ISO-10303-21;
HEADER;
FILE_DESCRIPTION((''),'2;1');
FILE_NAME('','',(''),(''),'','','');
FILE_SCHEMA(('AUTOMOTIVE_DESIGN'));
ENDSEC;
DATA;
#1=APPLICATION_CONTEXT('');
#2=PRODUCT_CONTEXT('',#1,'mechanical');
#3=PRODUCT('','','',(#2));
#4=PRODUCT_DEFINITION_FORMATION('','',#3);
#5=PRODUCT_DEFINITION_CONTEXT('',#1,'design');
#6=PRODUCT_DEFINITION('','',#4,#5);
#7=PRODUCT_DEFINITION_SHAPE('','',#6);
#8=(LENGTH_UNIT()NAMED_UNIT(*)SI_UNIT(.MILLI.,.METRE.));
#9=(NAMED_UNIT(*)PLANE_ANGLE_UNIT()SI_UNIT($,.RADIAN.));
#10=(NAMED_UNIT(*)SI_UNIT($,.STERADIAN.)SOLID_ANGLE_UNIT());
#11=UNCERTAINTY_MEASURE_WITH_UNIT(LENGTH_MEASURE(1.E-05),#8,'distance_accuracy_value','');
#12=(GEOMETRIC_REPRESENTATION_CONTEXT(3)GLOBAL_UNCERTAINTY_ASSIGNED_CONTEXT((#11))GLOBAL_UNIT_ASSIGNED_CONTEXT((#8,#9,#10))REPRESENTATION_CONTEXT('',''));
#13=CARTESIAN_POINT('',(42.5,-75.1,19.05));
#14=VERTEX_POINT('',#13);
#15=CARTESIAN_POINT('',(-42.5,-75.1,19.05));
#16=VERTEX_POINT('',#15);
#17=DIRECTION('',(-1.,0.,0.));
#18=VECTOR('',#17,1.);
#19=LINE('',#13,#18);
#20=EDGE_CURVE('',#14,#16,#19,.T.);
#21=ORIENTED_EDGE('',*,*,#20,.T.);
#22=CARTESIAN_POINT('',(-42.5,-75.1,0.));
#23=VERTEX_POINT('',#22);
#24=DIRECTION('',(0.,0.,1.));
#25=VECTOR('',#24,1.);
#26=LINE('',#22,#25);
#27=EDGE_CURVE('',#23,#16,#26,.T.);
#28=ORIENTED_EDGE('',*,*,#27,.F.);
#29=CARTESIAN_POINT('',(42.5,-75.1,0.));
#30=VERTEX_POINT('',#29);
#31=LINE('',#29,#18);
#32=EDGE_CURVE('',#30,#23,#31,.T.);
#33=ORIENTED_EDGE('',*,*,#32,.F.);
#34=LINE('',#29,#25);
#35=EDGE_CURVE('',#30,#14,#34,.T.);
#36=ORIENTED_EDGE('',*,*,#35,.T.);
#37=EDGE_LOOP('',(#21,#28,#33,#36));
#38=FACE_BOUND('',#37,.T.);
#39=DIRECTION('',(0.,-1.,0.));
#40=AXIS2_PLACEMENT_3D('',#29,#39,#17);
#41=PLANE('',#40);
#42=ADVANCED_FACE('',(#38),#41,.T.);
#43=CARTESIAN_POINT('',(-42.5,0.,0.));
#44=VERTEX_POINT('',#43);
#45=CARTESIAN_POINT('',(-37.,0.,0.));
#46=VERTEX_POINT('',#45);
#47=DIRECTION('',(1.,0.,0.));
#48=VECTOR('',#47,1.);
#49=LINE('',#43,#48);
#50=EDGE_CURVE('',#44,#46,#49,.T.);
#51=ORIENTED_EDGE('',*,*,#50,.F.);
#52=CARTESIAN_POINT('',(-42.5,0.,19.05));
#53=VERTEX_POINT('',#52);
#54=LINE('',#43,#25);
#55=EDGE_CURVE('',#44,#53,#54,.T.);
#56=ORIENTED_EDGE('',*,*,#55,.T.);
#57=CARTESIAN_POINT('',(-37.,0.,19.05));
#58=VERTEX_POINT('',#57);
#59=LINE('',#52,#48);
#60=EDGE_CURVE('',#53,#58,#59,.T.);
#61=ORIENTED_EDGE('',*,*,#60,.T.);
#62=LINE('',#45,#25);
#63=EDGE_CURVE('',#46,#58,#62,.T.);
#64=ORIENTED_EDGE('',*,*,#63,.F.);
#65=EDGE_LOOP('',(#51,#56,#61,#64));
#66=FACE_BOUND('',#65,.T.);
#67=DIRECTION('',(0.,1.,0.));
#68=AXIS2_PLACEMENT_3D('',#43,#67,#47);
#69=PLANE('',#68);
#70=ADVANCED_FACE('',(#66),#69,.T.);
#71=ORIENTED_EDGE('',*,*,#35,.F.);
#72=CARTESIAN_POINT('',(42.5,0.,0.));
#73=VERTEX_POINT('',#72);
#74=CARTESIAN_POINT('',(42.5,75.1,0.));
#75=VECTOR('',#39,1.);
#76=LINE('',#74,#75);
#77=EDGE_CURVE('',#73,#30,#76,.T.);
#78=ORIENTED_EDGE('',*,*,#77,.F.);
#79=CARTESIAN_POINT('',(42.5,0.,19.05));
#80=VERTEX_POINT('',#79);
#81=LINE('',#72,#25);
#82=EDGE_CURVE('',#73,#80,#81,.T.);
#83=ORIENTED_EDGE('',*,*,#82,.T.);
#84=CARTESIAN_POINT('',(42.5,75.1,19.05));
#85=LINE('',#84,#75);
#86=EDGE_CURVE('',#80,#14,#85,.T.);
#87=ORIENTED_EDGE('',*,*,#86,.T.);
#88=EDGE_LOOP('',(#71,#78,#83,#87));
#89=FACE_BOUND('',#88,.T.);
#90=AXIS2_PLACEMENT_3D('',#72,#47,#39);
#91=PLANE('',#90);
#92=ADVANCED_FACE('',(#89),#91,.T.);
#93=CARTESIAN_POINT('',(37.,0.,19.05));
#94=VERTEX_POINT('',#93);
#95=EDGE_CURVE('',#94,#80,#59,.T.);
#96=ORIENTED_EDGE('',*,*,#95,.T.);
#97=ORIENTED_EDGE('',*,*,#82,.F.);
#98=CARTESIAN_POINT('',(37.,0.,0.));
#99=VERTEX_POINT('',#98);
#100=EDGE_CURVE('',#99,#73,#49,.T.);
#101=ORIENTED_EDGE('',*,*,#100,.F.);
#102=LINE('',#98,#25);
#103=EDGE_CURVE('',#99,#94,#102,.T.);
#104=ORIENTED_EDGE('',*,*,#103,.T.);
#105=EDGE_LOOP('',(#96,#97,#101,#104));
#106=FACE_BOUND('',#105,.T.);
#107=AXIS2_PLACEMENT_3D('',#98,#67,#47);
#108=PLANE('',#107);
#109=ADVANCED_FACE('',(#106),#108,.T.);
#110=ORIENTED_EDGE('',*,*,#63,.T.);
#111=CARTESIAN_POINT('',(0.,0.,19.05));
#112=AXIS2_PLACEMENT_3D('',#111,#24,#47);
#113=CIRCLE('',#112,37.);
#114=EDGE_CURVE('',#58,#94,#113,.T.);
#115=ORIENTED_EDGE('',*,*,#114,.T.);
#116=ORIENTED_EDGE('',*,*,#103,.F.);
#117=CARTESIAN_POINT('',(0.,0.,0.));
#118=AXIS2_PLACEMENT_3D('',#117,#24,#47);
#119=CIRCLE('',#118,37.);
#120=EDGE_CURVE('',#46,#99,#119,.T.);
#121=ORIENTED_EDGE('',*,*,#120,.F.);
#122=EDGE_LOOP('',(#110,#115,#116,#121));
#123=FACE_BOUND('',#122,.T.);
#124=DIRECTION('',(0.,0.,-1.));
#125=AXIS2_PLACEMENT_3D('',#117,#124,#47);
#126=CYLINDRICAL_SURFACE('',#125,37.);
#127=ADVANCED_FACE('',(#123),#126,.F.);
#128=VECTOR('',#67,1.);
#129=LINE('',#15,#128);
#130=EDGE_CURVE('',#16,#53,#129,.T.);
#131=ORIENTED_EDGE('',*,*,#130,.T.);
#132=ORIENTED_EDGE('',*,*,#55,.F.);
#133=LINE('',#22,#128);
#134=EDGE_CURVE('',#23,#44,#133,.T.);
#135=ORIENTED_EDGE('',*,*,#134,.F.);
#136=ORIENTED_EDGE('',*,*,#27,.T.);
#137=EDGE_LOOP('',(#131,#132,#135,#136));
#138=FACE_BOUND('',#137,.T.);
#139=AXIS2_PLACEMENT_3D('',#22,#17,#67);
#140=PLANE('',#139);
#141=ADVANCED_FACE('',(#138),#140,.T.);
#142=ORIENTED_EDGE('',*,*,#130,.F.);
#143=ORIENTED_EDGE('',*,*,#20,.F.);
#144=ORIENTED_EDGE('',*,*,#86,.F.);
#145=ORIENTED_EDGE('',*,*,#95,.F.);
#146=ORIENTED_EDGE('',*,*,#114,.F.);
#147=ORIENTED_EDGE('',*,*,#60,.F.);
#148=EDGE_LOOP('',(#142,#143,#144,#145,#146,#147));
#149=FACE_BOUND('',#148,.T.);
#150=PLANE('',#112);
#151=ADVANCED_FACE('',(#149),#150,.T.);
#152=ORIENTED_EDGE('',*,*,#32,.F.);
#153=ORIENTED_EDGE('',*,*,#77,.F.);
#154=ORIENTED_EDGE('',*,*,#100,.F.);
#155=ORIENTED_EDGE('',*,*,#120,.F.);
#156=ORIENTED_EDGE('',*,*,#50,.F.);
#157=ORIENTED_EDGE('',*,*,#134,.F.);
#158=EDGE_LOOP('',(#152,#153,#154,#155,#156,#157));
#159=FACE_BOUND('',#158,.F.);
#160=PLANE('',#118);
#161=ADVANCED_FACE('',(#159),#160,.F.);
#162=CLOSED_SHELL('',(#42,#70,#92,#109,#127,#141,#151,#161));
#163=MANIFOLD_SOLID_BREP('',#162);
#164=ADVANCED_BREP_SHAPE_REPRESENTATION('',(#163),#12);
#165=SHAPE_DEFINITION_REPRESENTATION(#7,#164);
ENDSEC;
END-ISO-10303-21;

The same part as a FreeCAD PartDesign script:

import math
import FreeCAD as App
import Part
import Sketcher

doc = App.newDocument("Part")
params = doc.addObject("Spreadsheet::Sheet", "Params")
for row, (alias, value) in enumerate([
    ("sketch1_radius", "37 mm"),
    ("sketch1_width", "85 mm"),
    ("sketch1_height", "75.1 mm"),
    ("pad1_length", "19.05 mm"),
], start=1):
    params.set(f"A{row}", alias)
    params.set(f"B{row}", "=" + value)
    params.setAlias(f"B{row}", alias)

body = doc.addObject("PartDesign::Body", "Body")

# Sketch on XY plane
sketch1 = body.newObject("Sketcher::SketchObject", "Sketch")
sketch1.AttachmentSupport = (doc.getObject("XY_Plane"), [""])
sketch1.MapMode = "FlatFace"
sketch1.addGeometry([
    Part.LineSegment(App.Vector(42.5, 0, 0), App.Vector(37, 0, 0)),  # 0
    Part.ArcOfCircle(Part.Circle(App.Vector(0, 0, 0), App.Vector(0, 0, 1), 37), math.radians(180), math.radians(360)),  # 1
    Part.LineSegment(App.Vector(-37, 0, 0), App.Vector(-42.5, 0, 0)),  # 2
    Part.LineSegment(App.Vector(-42.5, 0, 0), App.Vector(-42.5, -75.1, 0)),  # 3
    Part.LineSegment(App.Vector(-42.5, -75.1, 0), App.Vector(42.5, -75.1, 0)),  # 4
    Part.LineSegment(App.Vector(42.5, -75.1, 0), App.Vector(42.5, 0, 0)),  # 5
], False)
sketch1.addConstraint([
    Sketcher.Constraint("Coincident", 0, 2, 1, 2),
    Sketcher.Constraint("Coincident", 1, 1, 2, 1),
    Sketcher.Constraint("Coincident", 2, 2, 3, 1),
    Sketcher.Constraint("Coincident", 3, 2, 4, 1),
    Sketcher.Constraint("Coincident", 4, 2, 5, 1),
    Sketcher.Constraint("Coincident", 5, 2, 0, 1),
    Sketcher.Constraint("Horizontal", 0),
    Sketcher.Constraint("Horizontal", 2),
    Sketcher.Constraint("Vertical", 3),
    Sketcher.Constraint("Horizontal", 4),
    Sketcher.Constraint("Vertical", 5),
    Sketcher.Constraint("Coincident", 1, 3, -1, 1),
    Sketcher.Constraint("Symmetric", 2, 2, 5, 2, -1, 1),
    Sketcher.Constraint("PointOnObject", 0, 2, -1),
    Sketcher.Constraint("Radius", 1, 37.0),
    Sketcher.Constraint("DistanceX", 4, 1, 4, 2, 85.0),
    Sketcher.Constraint("DistanceY", 3, 2, 3, 1, 75.1),
])
sketch1.setExpression("Constraints[14]", "Params.sketch1_radius")
sketch1.setExpression("Constraints[15]", "Params.sketch1_width")
sketch1.setExpression("Constraints[16]", "Params.sketch1_height")
pad1 = body.newObject("PartDesign::Pad", "Pad")
pad1.Profile = sketch1
pad1.setExpression("Length", "Params.pad1_length")

doc.recompute()
